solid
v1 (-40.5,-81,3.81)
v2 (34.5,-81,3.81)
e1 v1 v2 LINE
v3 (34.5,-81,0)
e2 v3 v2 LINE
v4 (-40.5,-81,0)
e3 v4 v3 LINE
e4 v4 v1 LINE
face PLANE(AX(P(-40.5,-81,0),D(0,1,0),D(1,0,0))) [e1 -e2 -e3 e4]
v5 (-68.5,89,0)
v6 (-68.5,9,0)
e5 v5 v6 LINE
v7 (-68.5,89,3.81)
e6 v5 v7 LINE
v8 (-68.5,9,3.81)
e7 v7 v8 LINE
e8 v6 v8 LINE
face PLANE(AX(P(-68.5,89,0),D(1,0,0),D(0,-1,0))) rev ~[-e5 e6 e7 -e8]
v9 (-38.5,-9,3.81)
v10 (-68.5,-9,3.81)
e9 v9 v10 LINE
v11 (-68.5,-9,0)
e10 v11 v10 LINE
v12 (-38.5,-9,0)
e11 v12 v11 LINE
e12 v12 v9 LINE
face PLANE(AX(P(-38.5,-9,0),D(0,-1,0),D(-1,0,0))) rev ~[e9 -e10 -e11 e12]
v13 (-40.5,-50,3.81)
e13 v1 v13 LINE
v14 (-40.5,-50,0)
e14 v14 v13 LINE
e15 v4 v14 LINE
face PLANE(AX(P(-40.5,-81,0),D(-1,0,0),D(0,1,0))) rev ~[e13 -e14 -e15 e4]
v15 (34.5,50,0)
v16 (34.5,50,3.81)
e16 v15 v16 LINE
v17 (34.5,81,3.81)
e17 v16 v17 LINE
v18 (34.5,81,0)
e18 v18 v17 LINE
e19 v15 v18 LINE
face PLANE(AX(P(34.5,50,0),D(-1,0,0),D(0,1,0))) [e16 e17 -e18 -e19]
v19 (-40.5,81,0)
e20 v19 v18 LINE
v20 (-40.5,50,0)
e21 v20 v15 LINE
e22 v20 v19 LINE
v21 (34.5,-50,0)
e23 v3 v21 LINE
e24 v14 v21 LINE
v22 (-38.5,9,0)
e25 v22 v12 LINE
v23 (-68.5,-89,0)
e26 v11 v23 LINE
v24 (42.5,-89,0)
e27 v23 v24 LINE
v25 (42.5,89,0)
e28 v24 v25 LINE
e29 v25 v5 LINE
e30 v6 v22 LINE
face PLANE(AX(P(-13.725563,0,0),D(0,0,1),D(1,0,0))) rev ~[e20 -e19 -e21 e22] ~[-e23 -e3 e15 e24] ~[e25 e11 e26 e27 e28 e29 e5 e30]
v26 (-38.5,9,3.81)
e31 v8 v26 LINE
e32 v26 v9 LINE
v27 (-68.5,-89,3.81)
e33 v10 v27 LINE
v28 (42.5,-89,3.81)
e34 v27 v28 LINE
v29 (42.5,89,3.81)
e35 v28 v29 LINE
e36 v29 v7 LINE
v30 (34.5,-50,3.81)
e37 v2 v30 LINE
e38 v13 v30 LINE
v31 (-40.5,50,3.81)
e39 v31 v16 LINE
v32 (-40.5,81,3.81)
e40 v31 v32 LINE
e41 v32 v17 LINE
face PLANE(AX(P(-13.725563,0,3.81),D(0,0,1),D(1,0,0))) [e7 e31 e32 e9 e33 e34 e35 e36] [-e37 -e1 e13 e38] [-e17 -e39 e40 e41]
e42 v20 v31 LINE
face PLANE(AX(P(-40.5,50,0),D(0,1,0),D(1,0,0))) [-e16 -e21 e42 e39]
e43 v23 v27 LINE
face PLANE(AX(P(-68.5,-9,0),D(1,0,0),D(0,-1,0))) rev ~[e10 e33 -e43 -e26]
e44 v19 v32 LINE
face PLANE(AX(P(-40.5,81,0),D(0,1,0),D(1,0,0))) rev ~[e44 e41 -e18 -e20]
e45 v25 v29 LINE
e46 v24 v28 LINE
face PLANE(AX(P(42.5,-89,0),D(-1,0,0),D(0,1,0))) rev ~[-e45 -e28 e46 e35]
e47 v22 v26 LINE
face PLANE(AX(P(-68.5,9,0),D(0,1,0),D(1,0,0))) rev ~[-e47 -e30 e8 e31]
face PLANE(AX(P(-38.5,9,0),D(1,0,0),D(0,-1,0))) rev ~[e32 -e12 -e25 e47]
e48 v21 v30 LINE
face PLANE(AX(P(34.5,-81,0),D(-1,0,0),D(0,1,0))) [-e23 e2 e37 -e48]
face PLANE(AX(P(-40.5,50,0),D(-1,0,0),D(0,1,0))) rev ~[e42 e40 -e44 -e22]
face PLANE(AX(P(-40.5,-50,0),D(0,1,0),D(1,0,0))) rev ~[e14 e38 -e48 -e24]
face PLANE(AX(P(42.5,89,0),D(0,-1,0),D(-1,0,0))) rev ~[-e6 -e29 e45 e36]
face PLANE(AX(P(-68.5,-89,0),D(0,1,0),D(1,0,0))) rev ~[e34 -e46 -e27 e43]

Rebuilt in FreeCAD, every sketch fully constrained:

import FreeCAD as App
import Part
import Sketcher
Q = App.Units.Quantity


def add_polygon(sketch, points):
    """Adds a closed chain of lines whose ends are joined by coincident constraints."""
    first, n = sketch.GeometryCount, len(points)
    for a, b in zip(points, points[1:] + points[:1]):
        sketch.addGeometry(Part.LineSegment(App.Vector(*a, 0), App.Vector(*b, 0)), False)
    for i in range(n):
        sketch.addConstraint(Sketcher.Constraint("Coincident", first + i, 2, first + (i + 1) % n, 1))

doc = App.newDocument("Part")
params = doc.addObject("Spreadsheet::Sheet", "Params")
for row, (alias, value) in enumerate([
    ("sketch1_width", "111 mm"),
    ("sketch1_width2", "30 mm"),
    ("sketch1_width3", "75 mm"),
    ("sketch1_height", "80 mm"),
    ("sketch1_height2", "18 mm"),
    ("pad1_length", "3.81 mm"),
], start=1):
    params.set(f"A{row}", alias)
    params.set(f"B{row}", "=" + value)
    params.setAlias(f"B{row}", alias)

body = doc.addObject("PartDesign::Body", "Body")

sketch1 = body.newObject("Sketcher::SketchObject", "Sketch")
sketch1.AttachmentSupport = (doc.getObject("XY_Plane"), [""])
sketch1.MapMode = "FlatFace"
add_polygon(sketch1, [(42, 89), (-68, 89), (-68, 9), (-38, 9), (-38, -9), (-68, -9), (-68, -89), (42, -89)])
add_polygon(sketch1, [(34, -81), (-40, -81), (-40, -50), (34, -50)])
add_polygon(sketch1, [(34, 50), (-40, 50), (-40, 81), (34, 81)])
sketch1.addConstraint([
    Sketcher.Constraint("Horizontal", 0),
    Sketcher.Constraint("Vertical", 1),
    Sketcher.Constraint("Horizontal", 2),
    Sketcher.Constraint("Vertical", 3),
    Sketcher.Constraint("Horizontal", 4),
    Sketcher.Constraint("Vertical", 5),
    Sketcher.Constraint("Horizontal", 6),
    Sketcher.Constraint("Vertical", 7),
    Sketcher.Constraint("Horizontal", 8),
    Sketcher.Constraint("Vertical", 9),
    Sketcher.Constraint("Horizontal", 10),
    Sketcher.Constraint("Vertical", 11),
    Sketcher.Constraint("Horizontal", 12),
    Sketcher.Constraint("Vertical", 13),
    Sketcher.Constraint("Horizontal", 14),
    Sketcher.Constraint("Vertical", 15),
    Sketcher.Constraint("Symmetric", 1, 2, 4, 2, -1),
    Sketcher.Constraint("Symmetric", 9, 2, 12, 2, -1),
    Sketcher.Constraint("Symmetric", 11, 2, 14, 2, -1),
    Sketcher.Constraint("Equal", 1, 5),
    Sketcher.Constraint("DistanceX", 0, 2, 0, 1, Q("111 mm")),
    Sketcher.Constraint("DistanceX", 2, 1, 2, 2, Q("30 mm")),
    Sketcher.Constraint("DistanceX", 8, 2, 8, 1, Q("75 mm")),
    Sketcher.Constraint("DistanceY", 1, 2, 1, 1, Q("80 mm")),
    Sketcher.Constraint("DistanceY", 3, 2, 3, 1, Q("18 mm")),
    Sketcher.Constraint("DistanceY", 9, 1, 9, 2, Q("31 mm")),
    Sketcher.Constraint("DistanceY", 8, 2, -1, 1, Q("81 mm")),
    Sketcher.Constraint("DistanceX", 5, 2, 8, 2, Q("28 mm")),
    Sketcher.Constraint("DistanceX", 0, 2, -1, 1, Q("68.5 mm")),
])
sketch1.setExpression("Constraints[36]", "Params.sketch1_width")
sketch1.setExpression("Constraints[37]", "Params.sketch1_width2")
sketch1.setExpression("Constraints[38]", "Params.sketch1_width3")
sketch1.setExpression("Constraints[39]", "Params.sketch1_height")
sketch1.setExpression("Constraints[40]", "Params.sketch1_height2")
pad1 = body.newObject("PartDesign::Pad", "Pad")
pad1.Profile = sketch1
pad1.setExpression("Length", "Params.pad1_length")

doc.recompute()
